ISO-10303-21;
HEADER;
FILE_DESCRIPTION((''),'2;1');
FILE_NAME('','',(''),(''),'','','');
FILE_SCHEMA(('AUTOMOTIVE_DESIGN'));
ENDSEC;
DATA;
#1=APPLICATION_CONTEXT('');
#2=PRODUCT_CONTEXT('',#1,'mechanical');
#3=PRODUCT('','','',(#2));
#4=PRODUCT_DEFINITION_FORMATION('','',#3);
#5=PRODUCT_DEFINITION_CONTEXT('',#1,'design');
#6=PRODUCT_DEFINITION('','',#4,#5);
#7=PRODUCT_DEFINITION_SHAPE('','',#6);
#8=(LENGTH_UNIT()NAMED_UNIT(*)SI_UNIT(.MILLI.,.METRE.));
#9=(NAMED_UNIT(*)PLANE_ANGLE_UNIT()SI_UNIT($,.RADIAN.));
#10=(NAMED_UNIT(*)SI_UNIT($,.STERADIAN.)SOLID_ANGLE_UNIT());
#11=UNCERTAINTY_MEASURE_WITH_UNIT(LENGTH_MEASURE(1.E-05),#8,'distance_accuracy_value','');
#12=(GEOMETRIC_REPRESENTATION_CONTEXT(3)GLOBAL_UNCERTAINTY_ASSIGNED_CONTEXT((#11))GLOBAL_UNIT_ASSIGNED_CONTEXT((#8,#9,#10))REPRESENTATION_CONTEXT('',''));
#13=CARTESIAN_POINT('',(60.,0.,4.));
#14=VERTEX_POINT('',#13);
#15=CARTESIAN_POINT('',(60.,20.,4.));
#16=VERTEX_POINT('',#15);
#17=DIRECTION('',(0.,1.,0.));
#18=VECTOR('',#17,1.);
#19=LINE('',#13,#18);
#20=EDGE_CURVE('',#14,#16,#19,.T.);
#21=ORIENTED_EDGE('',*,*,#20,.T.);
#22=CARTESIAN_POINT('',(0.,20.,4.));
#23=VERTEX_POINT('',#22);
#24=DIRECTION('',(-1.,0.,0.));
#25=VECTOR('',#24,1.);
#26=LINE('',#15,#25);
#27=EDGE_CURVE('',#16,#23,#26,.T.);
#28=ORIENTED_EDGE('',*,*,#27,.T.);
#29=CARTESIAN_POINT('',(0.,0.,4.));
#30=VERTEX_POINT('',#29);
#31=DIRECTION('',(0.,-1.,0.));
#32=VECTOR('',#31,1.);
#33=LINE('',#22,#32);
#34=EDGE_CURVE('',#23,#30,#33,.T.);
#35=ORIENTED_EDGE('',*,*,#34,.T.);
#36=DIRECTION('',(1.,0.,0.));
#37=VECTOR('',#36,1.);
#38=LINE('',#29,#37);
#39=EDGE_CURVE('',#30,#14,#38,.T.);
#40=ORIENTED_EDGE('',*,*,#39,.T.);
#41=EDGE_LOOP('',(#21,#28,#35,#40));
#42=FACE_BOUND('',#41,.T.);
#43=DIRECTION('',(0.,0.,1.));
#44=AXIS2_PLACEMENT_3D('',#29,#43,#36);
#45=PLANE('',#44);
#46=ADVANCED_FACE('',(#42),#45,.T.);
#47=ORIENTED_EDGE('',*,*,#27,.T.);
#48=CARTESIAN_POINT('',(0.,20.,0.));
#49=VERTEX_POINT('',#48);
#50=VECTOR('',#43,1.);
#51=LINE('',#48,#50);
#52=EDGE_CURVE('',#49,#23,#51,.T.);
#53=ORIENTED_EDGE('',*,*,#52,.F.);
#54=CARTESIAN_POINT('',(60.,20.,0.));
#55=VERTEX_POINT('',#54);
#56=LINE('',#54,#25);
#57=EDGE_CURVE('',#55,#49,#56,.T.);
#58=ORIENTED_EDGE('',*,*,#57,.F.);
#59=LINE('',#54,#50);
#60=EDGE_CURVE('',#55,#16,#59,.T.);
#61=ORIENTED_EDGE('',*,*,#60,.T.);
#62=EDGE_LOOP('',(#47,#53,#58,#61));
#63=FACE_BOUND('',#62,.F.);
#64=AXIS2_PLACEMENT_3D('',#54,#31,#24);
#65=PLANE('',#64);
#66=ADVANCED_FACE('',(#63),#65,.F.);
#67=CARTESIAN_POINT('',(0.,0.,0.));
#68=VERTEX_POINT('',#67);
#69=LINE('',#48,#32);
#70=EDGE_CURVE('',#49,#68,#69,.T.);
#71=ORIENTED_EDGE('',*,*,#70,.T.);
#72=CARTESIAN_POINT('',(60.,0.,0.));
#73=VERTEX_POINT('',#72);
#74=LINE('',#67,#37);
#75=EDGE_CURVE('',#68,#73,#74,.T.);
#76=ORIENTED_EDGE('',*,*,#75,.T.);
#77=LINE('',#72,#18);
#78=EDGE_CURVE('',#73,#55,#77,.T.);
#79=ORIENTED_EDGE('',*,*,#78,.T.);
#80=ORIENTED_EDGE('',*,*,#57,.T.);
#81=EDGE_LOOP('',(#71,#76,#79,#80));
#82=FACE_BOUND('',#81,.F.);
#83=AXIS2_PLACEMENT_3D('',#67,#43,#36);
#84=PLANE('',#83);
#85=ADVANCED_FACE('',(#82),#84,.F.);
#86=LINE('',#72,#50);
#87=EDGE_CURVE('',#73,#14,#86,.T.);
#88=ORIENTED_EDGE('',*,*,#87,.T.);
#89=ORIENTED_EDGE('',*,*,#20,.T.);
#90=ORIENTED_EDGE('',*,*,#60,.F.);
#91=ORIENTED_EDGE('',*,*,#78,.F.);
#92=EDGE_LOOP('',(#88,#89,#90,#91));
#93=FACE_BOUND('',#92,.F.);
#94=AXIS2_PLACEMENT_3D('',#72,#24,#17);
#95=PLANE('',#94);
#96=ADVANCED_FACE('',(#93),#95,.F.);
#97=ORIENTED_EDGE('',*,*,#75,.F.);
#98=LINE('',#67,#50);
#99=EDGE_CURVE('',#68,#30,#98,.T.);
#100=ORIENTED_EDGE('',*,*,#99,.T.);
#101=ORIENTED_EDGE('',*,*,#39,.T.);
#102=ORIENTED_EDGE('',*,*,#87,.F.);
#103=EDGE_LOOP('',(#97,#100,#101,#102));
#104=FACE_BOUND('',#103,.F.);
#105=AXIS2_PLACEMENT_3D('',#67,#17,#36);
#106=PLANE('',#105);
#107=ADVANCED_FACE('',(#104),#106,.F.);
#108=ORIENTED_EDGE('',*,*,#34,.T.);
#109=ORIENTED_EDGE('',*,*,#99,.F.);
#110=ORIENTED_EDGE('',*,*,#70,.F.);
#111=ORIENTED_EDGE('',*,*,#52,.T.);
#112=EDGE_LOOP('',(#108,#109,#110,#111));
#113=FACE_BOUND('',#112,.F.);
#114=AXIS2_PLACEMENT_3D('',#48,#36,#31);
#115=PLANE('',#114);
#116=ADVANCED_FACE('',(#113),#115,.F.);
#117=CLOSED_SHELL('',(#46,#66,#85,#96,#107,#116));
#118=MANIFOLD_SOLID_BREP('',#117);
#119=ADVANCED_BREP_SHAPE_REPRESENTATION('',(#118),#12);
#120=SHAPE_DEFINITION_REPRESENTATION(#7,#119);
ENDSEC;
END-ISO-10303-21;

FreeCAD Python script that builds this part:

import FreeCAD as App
import Part
import Sketcher


def add_polygon(sketch, points):
    """Adds a closed chain of lines whose ends are joined by coincident constraints."""
    first, n = sketch.GeometryCount, len(points)
    for a, b in zip(points, points[1:] + points[:1]):
        sketch.addGeometry(Part.LineSegment(App.Vector(*a, 0), App.Vector(*b, 0)), False)
    for i in range(n):
        sketch.addConstraint(Sketcher.Constraint("Coincident", first + i, 2, first + (i + 1) % n, 1))

doc = App.newDocument("Part")
body = doc.addObject("PartDesign::Body", "Body")

# Sketch on XY plane
sketch1 = body.newObject("Sketcher::SketchObject", "Sketch")
sketch1.AttachmentSupport = (doc.getObject("XY_Plane"), [""])
sketch1.MapMode = "FlatFace"
add_polygon(sketch1, [(0, 20), (0, 0), (60, 0), (60, 20)])  # lines 0-3
sketch1.addConstraint([
    Sketcher.Constraint("Vertical", 0),
    Sketcher.Constraint("Horizontal", 1),
    Sketcher.Constraint("Vertical", 2),
    Sketcher.Constraint("Horizontal", 3),
    Sketcher.Constraint("Coincident", 0, 2, -1, 1),
    Sketcher.Constraint("DistanceX", 1, 1, 1, 2, 60.0),
    Sketcher.Constraint("DistanceY", 0, 2, 0, 1, 20.0),
])
pad1 = body.newObject("PartDesign::Pad", "Pad")
pad1.Profile = sketch1
pad1.Length = 4

doc.recompute()
